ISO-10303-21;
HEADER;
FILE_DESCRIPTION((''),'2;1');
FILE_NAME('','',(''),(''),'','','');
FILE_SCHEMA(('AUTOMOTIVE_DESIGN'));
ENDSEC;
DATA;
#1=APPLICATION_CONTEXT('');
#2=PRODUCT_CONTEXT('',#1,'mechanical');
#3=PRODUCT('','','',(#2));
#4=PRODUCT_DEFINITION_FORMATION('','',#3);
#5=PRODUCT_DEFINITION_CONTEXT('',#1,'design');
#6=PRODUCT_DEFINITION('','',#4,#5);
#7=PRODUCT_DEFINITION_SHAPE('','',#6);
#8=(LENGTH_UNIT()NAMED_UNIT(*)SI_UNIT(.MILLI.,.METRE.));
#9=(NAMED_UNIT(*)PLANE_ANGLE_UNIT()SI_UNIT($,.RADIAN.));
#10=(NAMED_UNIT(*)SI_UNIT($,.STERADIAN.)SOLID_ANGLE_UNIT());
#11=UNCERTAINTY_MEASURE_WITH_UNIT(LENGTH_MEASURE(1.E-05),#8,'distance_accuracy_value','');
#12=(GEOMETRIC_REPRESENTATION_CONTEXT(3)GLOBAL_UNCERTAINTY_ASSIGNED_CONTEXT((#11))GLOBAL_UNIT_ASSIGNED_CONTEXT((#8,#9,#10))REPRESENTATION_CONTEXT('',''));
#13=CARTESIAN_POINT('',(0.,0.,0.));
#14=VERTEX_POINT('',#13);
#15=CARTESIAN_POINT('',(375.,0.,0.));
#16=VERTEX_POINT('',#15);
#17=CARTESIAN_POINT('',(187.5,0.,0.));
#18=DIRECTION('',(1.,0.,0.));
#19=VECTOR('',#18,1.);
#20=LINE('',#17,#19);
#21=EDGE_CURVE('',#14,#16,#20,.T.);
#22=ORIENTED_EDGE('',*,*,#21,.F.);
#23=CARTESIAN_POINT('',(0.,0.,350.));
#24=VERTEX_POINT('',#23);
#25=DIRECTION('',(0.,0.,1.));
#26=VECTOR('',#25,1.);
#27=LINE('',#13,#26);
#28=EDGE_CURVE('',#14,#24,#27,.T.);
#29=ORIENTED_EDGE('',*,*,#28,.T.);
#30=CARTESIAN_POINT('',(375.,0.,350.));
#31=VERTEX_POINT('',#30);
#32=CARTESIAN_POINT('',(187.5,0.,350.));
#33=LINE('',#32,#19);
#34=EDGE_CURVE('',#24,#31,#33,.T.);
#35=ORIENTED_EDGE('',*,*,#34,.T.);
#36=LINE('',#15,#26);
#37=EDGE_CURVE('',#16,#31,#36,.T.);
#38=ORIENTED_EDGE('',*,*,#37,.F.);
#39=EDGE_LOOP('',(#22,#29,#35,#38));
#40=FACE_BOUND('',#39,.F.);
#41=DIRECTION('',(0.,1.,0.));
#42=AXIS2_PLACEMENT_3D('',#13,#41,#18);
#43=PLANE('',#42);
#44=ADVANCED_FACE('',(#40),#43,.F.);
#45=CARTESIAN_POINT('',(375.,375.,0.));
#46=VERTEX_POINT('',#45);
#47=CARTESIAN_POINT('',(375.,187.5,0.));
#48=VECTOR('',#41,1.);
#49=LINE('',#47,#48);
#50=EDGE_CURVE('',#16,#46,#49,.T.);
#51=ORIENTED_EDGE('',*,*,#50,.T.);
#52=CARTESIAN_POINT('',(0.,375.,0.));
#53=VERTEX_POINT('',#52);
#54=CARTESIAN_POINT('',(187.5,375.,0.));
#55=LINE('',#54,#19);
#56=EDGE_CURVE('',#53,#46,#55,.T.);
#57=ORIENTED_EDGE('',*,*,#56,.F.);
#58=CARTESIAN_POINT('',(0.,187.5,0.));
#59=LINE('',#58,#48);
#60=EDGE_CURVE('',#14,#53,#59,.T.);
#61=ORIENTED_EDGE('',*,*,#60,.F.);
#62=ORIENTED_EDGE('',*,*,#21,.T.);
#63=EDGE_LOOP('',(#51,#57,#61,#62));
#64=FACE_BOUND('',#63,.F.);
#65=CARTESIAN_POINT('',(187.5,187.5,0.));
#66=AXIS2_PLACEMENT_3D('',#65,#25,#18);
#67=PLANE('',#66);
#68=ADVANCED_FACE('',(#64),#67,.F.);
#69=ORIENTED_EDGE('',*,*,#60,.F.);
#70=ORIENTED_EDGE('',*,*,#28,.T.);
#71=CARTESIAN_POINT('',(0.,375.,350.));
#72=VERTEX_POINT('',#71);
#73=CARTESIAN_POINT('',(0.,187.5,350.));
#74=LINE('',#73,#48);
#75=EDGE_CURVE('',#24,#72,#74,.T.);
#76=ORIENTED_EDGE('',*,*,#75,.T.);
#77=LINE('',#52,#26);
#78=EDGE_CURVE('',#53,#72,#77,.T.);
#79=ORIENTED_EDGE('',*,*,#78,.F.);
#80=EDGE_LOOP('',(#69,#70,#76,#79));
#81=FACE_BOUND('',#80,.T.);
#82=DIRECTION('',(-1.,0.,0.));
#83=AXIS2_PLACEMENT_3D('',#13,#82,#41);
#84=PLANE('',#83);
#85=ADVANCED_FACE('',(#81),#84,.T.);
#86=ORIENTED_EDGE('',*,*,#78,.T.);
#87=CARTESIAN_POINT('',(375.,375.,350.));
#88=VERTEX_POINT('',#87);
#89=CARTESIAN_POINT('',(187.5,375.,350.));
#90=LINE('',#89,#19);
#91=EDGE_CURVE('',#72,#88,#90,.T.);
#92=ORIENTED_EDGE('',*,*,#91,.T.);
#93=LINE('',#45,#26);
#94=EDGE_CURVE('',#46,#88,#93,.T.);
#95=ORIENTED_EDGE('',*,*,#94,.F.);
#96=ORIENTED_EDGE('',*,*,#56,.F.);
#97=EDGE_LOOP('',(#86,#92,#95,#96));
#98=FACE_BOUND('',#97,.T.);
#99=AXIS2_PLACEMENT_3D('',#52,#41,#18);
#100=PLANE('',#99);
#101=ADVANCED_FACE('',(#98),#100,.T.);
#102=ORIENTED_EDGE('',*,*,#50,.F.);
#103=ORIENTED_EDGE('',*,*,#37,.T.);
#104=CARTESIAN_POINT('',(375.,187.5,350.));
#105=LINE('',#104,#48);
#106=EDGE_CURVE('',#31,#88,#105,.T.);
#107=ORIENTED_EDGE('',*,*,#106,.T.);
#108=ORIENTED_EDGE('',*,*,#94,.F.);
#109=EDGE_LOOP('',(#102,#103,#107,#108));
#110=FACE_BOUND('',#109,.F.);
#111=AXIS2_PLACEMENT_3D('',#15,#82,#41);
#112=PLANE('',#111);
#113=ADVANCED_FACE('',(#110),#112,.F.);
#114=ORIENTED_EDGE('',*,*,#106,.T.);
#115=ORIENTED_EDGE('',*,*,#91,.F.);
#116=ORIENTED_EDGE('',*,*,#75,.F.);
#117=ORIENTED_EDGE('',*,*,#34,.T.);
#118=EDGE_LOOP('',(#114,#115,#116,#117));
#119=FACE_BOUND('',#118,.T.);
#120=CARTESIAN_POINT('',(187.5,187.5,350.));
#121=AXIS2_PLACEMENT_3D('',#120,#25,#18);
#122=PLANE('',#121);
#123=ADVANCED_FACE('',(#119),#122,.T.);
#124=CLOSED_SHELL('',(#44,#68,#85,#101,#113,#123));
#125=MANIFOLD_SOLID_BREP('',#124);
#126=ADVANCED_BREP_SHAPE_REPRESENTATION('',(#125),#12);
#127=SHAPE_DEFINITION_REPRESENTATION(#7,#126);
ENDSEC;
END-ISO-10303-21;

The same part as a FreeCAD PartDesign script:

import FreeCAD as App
import Part
import Sketcher
Q = App.Units.Quantity

doc = App.newDocument("Part")
body = doc.addObject("PartDesign::Body", "Body")

# Sketch on XY plane
sketch1 = body.newObject("Sketcher::SketchObject", "Sketch")
sketch1.AttachmentSupport = (doc.getObject("XY_Plane"), [""])
sketch1.MapMode = "FlatFace"
sketch1.addGeometry([
    Part.LineSegment(App.Vector(0, 375, 0), App.Vector(0, 0, 0)),
    Part.LineSegment(App.Vector(0, 0, 0), App.Vector(375, 0, 0)),
    Part.LineSegment(App.Vector(375, 0, 0), App.Vector(375, 375, 0)),
    Part.LineSegment(App.Vector(375, 375, 0), App.Vector(0, 375, 0)),
], False)
sketch1.addConstraint([
    Sketcher.Constraint("Coincident", 0, 2, 1, 1),
    Sketcher.Constraint("Coincident", 1, 2, 2, 1),
    Sketcher.Constraint("Coincident", 2, 2, 3, 1),
    Sketcher.Constraint("Coincident", 3, 2, 0, 1),
    Sketcher.Constraint("Vertical", 0),
    Sketcher.Constraint("Horizontal", 1),
    Sketcher.Constraint("Vertical", 2),
    Sketcher.Constraint("Horizontal", 3),
    Sketcher.Constraint("Coincident", 0, 2, -1, 1),
    Sketcher.Constraint("Equal", 3, 0),
    Sketcher.Constraint("DistanceX", 1, 1, 1, 2, Q("375 mm")),
])
pad1 = body.newObject("PartDesign::Pad", "Pad")
pad1.Profile = sketch1
pad1.Length = 350

doc.recompute()
